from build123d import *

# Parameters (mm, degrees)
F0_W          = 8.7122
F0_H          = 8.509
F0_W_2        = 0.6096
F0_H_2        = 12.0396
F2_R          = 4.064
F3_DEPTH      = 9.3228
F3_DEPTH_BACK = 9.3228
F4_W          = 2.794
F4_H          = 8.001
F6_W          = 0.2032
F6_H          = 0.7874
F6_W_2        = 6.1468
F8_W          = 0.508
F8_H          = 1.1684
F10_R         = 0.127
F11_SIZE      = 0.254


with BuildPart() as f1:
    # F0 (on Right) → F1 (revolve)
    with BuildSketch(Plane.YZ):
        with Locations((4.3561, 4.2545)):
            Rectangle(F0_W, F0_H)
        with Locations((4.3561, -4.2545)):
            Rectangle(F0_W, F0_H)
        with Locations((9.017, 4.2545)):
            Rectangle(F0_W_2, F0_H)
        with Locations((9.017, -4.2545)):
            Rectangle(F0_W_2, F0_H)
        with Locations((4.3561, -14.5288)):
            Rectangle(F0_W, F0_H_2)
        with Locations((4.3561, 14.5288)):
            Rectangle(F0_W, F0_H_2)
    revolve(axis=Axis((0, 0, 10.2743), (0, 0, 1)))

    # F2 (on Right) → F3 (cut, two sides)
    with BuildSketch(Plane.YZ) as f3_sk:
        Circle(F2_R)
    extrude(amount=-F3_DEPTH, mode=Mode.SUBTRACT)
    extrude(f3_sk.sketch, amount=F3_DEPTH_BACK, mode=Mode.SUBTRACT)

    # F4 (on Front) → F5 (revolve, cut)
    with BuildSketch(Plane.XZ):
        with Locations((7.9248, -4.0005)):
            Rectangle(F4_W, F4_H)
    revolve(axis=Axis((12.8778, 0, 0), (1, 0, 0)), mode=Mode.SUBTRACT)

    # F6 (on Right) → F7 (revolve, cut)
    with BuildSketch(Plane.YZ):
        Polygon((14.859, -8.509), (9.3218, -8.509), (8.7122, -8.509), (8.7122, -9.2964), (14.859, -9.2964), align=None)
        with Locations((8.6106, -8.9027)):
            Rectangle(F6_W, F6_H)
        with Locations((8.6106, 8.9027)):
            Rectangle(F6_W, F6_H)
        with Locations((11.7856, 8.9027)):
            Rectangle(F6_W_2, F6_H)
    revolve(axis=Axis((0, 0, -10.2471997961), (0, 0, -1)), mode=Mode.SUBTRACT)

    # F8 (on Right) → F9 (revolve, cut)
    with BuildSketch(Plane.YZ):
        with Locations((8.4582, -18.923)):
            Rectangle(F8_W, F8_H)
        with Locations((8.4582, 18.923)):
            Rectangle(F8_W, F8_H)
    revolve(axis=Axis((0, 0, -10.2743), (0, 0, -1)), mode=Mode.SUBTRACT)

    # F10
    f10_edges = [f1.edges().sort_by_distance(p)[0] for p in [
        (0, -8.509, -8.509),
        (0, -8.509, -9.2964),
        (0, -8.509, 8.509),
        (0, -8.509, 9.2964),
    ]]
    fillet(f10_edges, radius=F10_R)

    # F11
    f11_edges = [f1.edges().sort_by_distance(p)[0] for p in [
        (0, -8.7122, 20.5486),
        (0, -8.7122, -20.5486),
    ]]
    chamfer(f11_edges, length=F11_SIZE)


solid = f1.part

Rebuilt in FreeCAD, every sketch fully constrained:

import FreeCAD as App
import Part
import Sketcher
Q = App.Units.Quantity


def edges_at(feature, points):
    """Names of the edges that pass closest to the given points."""
    edges = feature.Shape.Edges
    near = lambda p: min(range(len(edges)), key=lambda i: edges[i].distToShape(Part.Vertex(*p))[0])
    return sorted({f"Edge{near(p) + 1}" for p in points})


def add_polygon(sketch, points):
    """Adds a closed chain of lines whose ends are joined by coincident constraints."""
    first, n = sketch.GeometryCount, len(points)
    for a, b in zip(points, points[1:] + points[:1]):
        sketch.addGeometry(Part.LineSegment(App.Vector(*a, 0), App.Vector(*b, 0)), False)
    for i in range(n):
        sketch.addConstraint(Sketcher.Constraint("Coincident", first + i, 2, first + (i + 1) % n, 1))

doc = App.newDocument("Part")
body = doc.addObject("PartDesign::Body", "Body")

# Sketch on YZ plane
sketch1 = doc.addObject("Sketcher::SketchObject", "Sketch")
body.addObject(sketch1)
sketch1.AttachmentSupport = (doc.YZ_Plane, [""])
sketch1.MapMode = "FlatFace"
add_polygon(sketch1, [(0, -20.5486), (8.7122, -20.5486), (8.7122, -8.509), (9.3218, -8.509), (9.3218, 8.509), (8.7122, 8.509), (8.7122, 20.5486), (0, 20.5486)])  # lines 0-7
sketch1.addConstraint([
    Sketcher.Constraint("Horizontal", 0),
    Sketcher.Constraint("Vertical", 1),
    Sketcher.Constraint("Horizontal", 2),
    Sketcher.Constraint("Vertical", 3),
    Sketcher.Constraint("Horizontal", 4),
    Sketcher.Constraint("Vertical", 5),
    Sketcher.Constraint("Horizontal", 6),
    Sketcher.Constraint("Vertical", 7),
    Sketcher.Constraint("Symmetric", 6, 2, 7, 2, -1, 1),
    Sketcher.Constraint("Symmetric", 1, 2, 4, 2, -1),
    Sketcher.Constraint("DistanceY", 3, 1, 3, 2, Q("0.67 in")),
    Sketcher.Constraint("DistanceX", 0, 1, 0, 2, Q("0.343 in")),
    Sketcher.Constraint("DistanceX", 2, 1, 2, 2, Q("0.024 in")),
    Sketcher.Constraint("DistanceY", 1, 1, 1, 2, Q("0.474 in")),
])
revolution = doc.addObject("PartDesign::Revolution", "Revolution")
body.addObject(revolution)
revolution.Profile = sketch1
revolution.ReferenceAxis = (sketch1, ["V_Axis"])
revolution.Angle = 360

# Sketch on YZ plane
sketch2 = doc.addObject("Sketcher::SketchObject", "Sketch001")
body.addObject(sketch2)
sketch2.AttachmentSupport = (doc.YZ_Plane, [""])
sketch2.MapMode = "FlatFace"
sketch2.addGeometry(Part.Circle(App.Vector(0, 0, 0), App.Vector(0, 0, 1), 4.064), False)
sketch2.addConstraint([
    Sketcher.Constraint("Coincident", 0, 3, -1, 1),
    Sketcher.Constraint("Diameter", 0, Q("0.32 in")),
])
pocket1 = doc.addObject("PartDesign::Pocket", "Pocket")
body.addObject(pocket1)
pocket1.Profile = sketch2
pocket1.Type = "ThroughAll"
pocket1.Midplane = True

# Sketch on XZ plane
sketch3 = doc.addObject("Sketcher::SketchObject", "Sketch002")
body.addObject(sketch3)
sketch3.AttachmentSupport = (doc.XZ_Plane, [""])
sketch3.MapMode = "FlatFace"
add_polygon(sketch3, [(6.5278, 0), (6.5278, -8.001), (9.3218, -8.001), (9.3218, 0)])  # lines 0-3
sketch3.addConstraint([
    Sketcher.Constraint("Vertical", 0),
    Sketcher.Constraint("Horizontal", 1),
    Sketcher.Constraint("Vertical", 2),
    Sketcher.Constraint("Horizontal", 3),
    Sketcher.Constraint("PointOnObject", 2, 2, -1),
    Sketcher.Constraint("DistanceX", 1, 1, 1, 2, Q("0.11 in")),
    Sketcher.Constraint("DistanceY", 0, 2, 0, 1, Q("0.315 in")),
    Sketcher.Constraint("DistanceX", -1, 1, 0, 2, Q("0.257 in")),
])
groove = doc.addObject("PartDesign::Groove", "Groove")
body.addObject(groove)
groove.Profile = sketch3
groove.ReferenceAxis = (sketch3, ["H_Axis"])
groove.Angle = 360

# Sketch on YZ plane
sketch4 = doc.addObject("Sketcher::SketchObject", "Sketch003")
body.addObject(sketch4)
sketch4.AttachmentSupport = (doc.YZ_Plane, [""])
sketch4.MapMode = "FlatFace"
add_polygon(sketch4, [(14.859, -8.509), (8.509, -8.509), (8.509, -9.2964), (14.859, -9.2964)])  # lines 0-3
add_polygon(sketch4, [(8.509, 9.2964), (8.509, 8.509), (14.859, 8.509), (14.859, 9.2964)])  # lines 4-7
sketch4.addConstraint([
    Sketcher.Constraint("Horizontal", 0),
    Sketcher.Constraint("Vertical", 1),
    Sketcher.Constraint("Horizontal", 2),
    Sketcher.Constraint("Vertical", 3),
    Sketcher.Constraint("Vertical", 4),
    Sketcher.Constraint("Horizontal", 5),
    Sketcher.Constraint("Vertical", 6),
    Sketcher.Constraint("Horizontal", 7),
    Sketcher.Constraint("Symmetric", 0, 2, 4, 2, -1),
    Sketcher.Constraint("Symmetric", 2, 2, 6, 2, -1),
    Sketcher.Constraint("DistanceX", 0, 2, 0, 1, Q("0.25 in")),
    Sketcher.Constraint("DistanceY", 1, 2, 1, 1, Q("0.031 in")),
    Sketcher.Constraint("DistanceY", 0, 2, 4, 2, Q("0.67 in")),
    Sketcher.Constraint("DistanceX", -1, 1, 0, 2, Q("0.335 in")),
])
groove2 = doc.addObject("PartDesign::Groove", "Groove001")
body.addObject(groove2)
groove2.Profile = sketch4
groove2.ReferenceAxis = (sketch4, ["V_Axis"])
groove2.Angle = 360

# Sketch on YZ plane
sketch5 = doc.addObject("Sketcher::SketchObject", "Sketch004")
body.addObject(sketch5)
sketch5.AttachmentSupport = (doc.YZ_Plane, [""])
sketch5.MapMode = "FlatFace"
add_polygon(sketch5, [(8.2042, -18.3388), (8.2042, -19.5072), (8.7122, -19.5072), (8.7122, -18.3388)])  # lines 0-3
add_polygon(sketch5, [(8.2042, 19.5072), (8.2042, 18.3388), (8.7122, 18.3388), (8.7122, 19.5072)])  # lines 4-7
sketch5.addConstraint([
    Sketcher.Constraint("Vertical", 0),
    Sketcher.Constraint("Horizontal", 1),
    Sketcher.Constraint("Vertical", 2),
    Sketcher.Constraint("Horizontal", 3),
    Sketcher.Constraint("Vertical", 4),
    Sketcher.Constraint("Horizontal", 5),
    Sketcher.Constraint("Vertical", 6),
    Sketcher.Constraint("Horizontal", 7),
    Sketcher.Constraint("Symmetric", 3, 2, 4, 2, -1),
    Sketcher.Constraint("Symmetric", 1, 2, 6, 2, -1),
    Sketcher.Constraint("DistanceX", 1, 1, 1, 2, Q("0.02 in")),
    Sketcher.Constraint("DistanceY", 0, 2, 0, 1, Q("0.046 in")),
    Sketcher.Constraint("DistanceY", 0, 2, 4, 2, Q("1.49 in")),
    Sketcher.Constraint("DistanceX", -1, 1, 0, 2, Q("0.323 in")),
])
groove3 = doc.addObject("PartDesign::Groove", "Groove002")
body.addObject(groove3)
groove3.Profile = sketch5
groove3.ReferenceAxis = (sketch5, ["V_Axis"])
groove3.Angle = 360
doc.recompute()

fillet = doc.addObject("PartDesign::Fillet", "Fillet")
body.addObject(fillet)
fillet.Base = (groove3, edges_at(groove3, [
    (0, -8.509, -8.509),
    (0, -8.509, -9.296),
    (0, -8.509, 8.509),
    (0, -8.509, 9.296),
]))
fillet.Radius = Q("0.005 in")
doc.recompute()

chamfer = doc.addObject("PartDesign::Chamfer", "Chamfer")
body.addObject(chamfer)
chamfer.Base = (fillet, edges_at(fillet, [(0, -8.712, 20.549), (0, -8.712, -20.549)]))
chamfer.Size = Q("0.01 in")

doc.recompute()
